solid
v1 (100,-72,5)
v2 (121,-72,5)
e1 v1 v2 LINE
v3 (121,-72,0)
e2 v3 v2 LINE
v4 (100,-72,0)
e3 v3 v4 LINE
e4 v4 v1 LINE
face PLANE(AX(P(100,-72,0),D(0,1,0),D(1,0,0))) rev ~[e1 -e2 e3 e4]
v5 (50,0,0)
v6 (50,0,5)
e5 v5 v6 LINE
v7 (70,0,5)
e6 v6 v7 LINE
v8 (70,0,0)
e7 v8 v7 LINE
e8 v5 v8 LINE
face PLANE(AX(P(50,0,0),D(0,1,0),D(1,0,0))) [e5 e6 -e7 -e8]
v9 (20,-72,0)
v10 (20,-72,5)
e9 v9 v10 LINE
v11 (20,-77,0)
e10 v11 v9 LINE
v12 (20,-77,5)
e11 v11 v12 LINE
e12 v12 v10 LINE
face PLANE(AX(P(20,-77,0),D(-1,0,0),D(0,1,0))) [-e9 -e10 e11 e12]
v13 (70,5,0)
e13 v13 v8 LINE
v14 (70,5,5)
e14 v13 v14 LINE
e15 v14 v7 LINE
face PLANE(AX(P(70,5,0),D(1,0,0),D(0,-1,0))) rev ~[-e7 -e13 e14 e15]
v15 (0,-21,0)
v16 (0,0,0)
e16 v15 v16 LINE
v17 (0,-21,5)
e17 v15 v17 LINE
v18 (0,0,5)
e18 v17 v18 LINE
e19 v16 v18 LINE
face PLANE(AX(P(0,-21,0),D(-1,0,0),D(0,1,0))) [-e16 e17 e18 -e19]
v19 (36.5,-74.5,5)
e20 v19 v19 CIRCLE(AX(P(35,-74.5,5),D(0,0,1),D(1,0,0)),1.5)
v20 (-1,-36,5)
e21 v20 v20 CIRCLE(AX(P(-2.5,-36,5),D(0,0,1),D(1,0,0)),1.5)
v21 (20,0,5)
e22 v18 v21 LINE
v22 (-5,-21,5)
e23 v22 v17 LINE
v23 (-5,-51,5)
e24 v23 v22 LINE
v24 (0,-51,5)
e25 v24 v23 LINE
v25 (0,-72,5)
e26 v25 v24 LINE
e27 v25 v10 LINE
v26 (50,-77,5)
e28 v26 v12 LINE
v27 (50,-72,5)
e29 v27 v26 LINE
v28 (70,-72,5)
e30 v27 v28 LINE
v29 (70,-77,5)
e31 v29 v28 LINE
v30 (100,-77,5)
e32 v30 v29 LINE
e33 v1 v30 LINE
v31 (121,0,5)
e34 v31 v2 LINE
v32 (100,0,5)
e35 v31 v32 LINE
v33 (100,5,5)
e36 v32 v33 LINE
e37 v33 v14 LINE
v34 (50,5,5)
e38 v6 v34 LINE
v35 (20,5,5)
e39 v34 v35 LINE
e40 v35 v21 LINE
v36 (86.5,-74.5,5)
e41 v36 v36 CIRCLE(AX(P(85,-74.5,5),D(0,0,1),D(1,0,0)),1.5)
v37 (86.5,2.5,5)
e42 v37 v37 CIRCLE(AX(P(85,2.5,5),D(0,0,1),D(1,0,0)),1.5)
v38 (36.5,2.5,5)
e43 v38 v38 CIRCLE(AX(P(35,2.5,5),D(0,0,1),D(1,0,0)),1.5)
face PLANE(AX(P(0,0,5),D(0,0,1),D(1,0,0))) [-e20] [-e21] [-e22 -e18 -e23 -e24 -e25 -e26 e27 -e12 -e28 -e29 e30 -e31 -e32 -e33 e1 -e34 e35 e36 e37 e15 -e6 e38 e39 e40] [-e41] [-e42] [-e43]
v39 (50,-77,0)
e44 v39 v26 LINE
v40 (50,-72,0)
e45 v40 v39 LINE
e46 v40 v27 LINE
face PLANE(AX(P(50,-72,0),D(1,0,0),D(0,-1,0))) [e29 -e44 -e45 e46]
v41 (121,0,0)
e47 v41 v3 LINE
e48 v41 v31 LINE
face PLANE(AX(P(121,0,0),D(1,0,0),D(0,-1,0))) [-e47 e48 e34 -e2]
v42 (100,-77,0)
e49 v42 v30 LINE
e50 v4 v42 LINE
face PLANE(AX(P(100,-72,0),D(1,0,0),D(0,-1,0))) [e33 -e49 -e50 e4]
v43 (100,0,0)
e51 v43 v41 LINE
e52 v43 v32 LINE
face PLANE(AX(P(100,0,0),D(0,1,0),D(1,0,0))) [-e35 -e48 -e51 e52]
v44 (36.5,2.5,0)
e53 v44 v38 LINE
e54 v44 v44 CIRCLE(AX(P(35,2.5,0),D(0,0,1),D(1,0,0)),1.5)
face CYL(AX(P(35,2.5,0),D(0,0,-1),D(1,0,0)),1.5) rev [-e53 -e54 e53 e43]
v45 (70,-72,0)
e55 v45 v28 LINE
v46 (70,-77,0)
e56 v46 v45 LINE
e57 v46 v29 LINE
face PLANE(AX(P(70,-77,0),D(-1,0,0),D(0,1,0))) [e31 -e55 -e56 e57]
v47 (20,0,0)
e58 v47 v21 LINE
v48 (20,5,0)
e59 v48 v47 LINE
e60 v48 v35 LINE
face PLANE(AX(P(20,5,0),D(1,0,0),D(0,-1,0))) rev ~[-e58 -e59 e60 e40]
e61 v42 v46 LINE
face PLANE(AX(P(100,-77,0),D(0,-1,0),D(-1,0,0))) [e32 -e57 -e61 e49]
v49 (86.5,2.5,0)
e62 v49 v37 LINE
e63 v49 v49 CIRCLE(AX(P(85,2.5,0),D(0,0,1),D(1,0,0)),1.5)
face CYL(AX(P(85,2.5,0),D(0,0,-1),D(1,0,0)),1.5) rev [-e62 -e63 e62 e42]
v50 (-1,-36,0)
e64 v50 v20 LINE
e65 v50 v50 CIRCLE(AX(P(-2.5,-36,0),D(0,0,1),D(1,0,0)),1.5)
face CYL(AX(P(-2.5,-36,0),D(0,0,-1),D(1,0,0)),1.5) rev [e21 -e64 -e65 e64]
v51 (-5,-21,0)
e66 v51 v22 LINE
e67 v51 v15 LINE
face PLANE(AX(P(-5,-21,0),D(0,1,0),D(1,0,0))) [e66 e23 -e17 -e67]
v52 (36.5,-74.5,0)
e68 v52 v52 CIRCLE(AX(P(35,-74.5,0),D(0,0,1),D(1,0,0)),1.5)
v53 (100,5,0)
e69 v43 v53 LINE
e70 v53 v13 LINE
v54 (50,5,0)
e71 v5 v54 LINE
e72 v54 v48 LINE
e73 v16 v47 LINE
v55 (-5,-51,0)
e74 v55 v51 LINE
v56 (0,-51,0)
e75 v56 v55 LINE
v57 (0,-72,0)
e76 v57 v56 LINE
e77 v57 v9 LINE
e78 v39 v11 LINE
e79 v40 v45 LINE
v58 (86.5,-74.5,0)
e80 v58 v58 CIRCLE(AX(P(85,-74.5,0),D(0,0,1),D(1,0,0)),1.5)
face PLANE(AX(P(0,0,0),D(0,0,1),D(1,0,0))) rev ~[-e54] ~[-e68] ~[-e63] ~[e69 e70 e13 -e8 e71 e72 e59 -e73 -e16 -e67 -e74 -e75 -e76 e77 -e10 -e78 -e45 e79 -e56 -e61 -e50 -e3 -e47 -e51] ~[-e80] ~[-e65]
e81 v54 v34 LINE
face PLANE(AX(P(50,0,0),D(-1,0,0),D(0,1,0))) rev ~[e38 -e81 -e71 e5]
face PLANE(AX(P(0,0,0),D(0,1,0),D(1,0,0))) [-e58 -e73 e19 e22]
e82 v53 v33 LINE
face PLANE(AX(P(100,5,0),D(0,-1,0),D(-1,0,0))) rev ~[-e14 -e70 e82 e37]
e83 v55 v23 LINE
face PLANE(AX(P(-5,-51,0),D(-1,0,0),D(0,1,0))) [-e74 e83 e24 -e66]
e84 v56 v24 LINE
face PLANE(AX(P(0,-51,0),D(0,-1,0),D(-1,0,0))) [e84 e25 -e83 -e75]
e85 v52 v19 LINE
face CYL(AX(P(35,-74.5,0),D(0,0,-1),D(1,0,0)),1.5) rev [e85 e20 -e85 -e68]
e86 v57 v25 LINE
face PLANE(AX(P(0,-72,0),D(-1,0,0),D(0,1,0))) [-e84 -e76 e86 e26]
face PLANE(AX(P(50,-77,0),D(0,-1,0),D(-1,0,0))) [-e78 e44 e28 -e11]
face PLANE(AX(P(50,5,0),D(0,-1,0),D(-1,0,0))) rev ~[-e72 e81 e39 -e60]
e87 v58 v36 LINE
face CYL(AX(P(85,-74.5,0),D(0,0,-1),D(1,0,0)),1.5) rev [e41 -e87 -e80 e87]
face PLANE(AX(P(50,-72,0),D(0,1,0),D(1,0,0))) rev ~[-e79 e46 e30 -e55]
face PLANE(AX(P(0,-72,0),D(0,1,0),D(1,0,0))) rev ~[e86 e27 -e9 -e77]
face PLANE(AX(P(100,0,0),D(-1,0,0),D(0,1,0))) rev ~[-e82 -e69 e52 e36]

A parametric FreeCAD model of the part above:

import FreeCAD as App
import Part
import Sketcher
from FreeCAD import Vector


def add_polygon(sketch, points):
    """Adds a closed chain of lines whose ends are joined by coincident constraints."""
    first, n = sketch.GeometryCount, len(points)
    for a, b in zip(points, points[1:] + points[:1]):
        sketch.addGeometry(Part.LineSegment(App.Vector(*a, 0), App.Vector(*b, 0)), False)
    for i in range(n):
        sketch.addConstraint(Sketcher.Constraint("Coincident", first + i, 2, first + (i + 1) % n, 1))

doc = App.newDocument("Part")
body = doc.addObject("PartDesign::Body", "Body")

# Sketch on XY plane
sketch1 = doc.addObject("Sketcher::SketchObject", "Sketch")
body.addObject(sketch1)
sketch1.AttachmentSupport = (doc.XY_Plane, [""])
sketch1.MapMode = "FlatFace"
add_polygon(sketch1, [(0, -51), (0, -72), (20, -72), (20, -77), (50, -77), (50, -72), (70, -72), (70, -77), (100, -77), (100, -72), (121, -72), (121, 0), (100, 0), (100, 5), (70, 5), (70, 0), (50, 0), (50, 5), (20, 5), (20, 0), (0, 0), (0, -21), (-5, -21), (-5, -51)])  # lines 0-23
sketch1.addGeometry(Part.Circle(Vector(-2.5, -36, 0), Vector(0, 0, 1), 1.5), False)  # 24
sketch1.addGeometry(Part.Circle(Vector(35, 2.5, 0), Vector(0, 0, 1), 1.5), False)  # 25
sketch1.addGeometry(Part.Circle(Vector(85, 2.5, 0), Vector(0, 0, 1), 1.5), False)  # 26
sketch1.addGeometry(Part.Circle(Vector(85, -74.5, 0), Vector(0, 0, 1), 1.5), False)  # 27
sketch1.addGeometry(Part.Circle(Vector(35, -74.5, 0), Vector(0, 0, 1), 1.5), False)  # 28
sketch1.addConstraint([
    Sketcher.Constraint("Vertical", 0),
    Sketcher.Constraint("Horizontal", 1),
    Sketcher.Constraint("Vertical", 2),
    Sketcher.Constraint("Horizontal", 3),
    Sketcher.Constraint("Vertical", 4),
    Sketcher.Constraint("Horizontal", 5),
    Sketcher.Constraint("Vertical", 6),
    Sketcher.Constraint("Horizontal", 7),
    Sketcher.Constraint("Vertical", 8),
    Sketcher.Constraint("Horizontal", 9),
    Sketcher.Constraint("Vertical", 10),
    Sketcher.Constraint("Horizontal", 11),
    Sketcher.Constraint("Vertical", 12),
    Sketcher.Constraint("Horizontal", 13),
    Sketcher.Constraint("Vertical", 14),
    Sketcher.Constraint("Horizontal", 15),
    Sketcher.Constraint("Vertical", 16),
    Sketcher.Constraint("Horizontal", 17),
    Sketcher.Constraint("Vertical", 18),
    Sketcher.Constraint("Horizontal", 19),
    Sketcher.Constraint("Vertical", 20),
    Sketcher.Constraint("Horizontal", 21),
    Sketcher.Constraint("Vertical", 22),
    Sketcher.Constraint("Horizontal", 23),
    Sketcher.Constraint("Coincident", 19, 2, -1, 1),
    Sketcher.Constraint("Equal", 24, 25),
    Sketcher.Constraint("Equal", 25, 26),
    Sketcher.Constraint("Equal", 26, 27),
    Sketcher.Constraint("Equal", 27, 28),
    Sketcher.Constraint("PointOnObject", 0, 2, -2),
    Sketcher.Constraint("PointOnObject", 10, 2, -1),
    Sketcher.Constraint("PointOnObject", 14, 2, -1),
    Sketcher.Constraint("Horizontal", 25, 3, 26, 3),
    Sketcher.Constraint("Horizontal", 27, 3, 28, 3),
    Sketcher.Constraint("Horizontal", 1, 2, 4, 2),
    Sketcher.Constraint("Horizontal", 3, 2, 6, 2),
    Sketcher.Constraint("Horizontal", 5, 2, 8, 2),
    Sketcher.Constraint("Horizontal", 13, 2, 16, 2),
    Sketcher.Constraint("Vertical", 26, 3, 27, 3),
    Sketcher.Constraint("Vertical", 25, 3, 28, 3),
    Sketcher.Constraint("Vertical", 8, 2, 11, 2),
    Sketcher.Constraint("Vertical", 6, 2, 13, 2),
    Sketcher.Constraint("Vertical", 4, 2, 15, 2),
    Sketcher.Constraint("Vertical", 2, 2, 17, 2),
    Sketcher.Constraint("Equal", 1, 5),
    Sketcher.Constraint("Equal", 3, 7),
    Sketcher.Constraint("Equal", 11, 0),
    Sketcher.Constraint("Equal", 23, 2),
    Sketcher.Constraint("Equal", 8, 12),
    Sketcher.Constraint("Equal", 0, 20),
    Sketcher.Constraint("Equal", 17, 22),
    Sketcher.Constraint("Diameter", 24, 3.0),
    Sketcher.Constraint("DistanceX", 1, 1, 1, 2, 20.0),
    Sketcher.Constraint("DistanceX", 3, 1, 3, 2, 30.0),
    Sketcher.Constraint("DistanceX", 21, 2, 21, 1, 5.0),
    Sketcher.Constraint("DistanceX", 9, 1, 9, 2, 21.0),
    Sketcher.Constraint("DistanceY", 24, 3, -1, 1, 36.0),
    Sketcher.Constraint("DistanceX", -1, 1, 25, 3, 35.0),
    Sketcher.Constraint("DistanceX", -1, 1, 26, 3, 85.0),
    Sketcher.Constraint("DistanceY", 27, 3, 26, 3, 77.0),
    Sketcher.Constraint("DistanceX", 24, 3, -1, 1, 2.5),
    Sketcher.Constraint("DistanceY", -1, 1, 25, 3, 2.5),
])
pad1 = doc.addObject("PartDesign::Pad", "Pad")
body.addObject(pad1)
pad1.Profile = sketch1
pad1.Length = 5

doc.recompute()
